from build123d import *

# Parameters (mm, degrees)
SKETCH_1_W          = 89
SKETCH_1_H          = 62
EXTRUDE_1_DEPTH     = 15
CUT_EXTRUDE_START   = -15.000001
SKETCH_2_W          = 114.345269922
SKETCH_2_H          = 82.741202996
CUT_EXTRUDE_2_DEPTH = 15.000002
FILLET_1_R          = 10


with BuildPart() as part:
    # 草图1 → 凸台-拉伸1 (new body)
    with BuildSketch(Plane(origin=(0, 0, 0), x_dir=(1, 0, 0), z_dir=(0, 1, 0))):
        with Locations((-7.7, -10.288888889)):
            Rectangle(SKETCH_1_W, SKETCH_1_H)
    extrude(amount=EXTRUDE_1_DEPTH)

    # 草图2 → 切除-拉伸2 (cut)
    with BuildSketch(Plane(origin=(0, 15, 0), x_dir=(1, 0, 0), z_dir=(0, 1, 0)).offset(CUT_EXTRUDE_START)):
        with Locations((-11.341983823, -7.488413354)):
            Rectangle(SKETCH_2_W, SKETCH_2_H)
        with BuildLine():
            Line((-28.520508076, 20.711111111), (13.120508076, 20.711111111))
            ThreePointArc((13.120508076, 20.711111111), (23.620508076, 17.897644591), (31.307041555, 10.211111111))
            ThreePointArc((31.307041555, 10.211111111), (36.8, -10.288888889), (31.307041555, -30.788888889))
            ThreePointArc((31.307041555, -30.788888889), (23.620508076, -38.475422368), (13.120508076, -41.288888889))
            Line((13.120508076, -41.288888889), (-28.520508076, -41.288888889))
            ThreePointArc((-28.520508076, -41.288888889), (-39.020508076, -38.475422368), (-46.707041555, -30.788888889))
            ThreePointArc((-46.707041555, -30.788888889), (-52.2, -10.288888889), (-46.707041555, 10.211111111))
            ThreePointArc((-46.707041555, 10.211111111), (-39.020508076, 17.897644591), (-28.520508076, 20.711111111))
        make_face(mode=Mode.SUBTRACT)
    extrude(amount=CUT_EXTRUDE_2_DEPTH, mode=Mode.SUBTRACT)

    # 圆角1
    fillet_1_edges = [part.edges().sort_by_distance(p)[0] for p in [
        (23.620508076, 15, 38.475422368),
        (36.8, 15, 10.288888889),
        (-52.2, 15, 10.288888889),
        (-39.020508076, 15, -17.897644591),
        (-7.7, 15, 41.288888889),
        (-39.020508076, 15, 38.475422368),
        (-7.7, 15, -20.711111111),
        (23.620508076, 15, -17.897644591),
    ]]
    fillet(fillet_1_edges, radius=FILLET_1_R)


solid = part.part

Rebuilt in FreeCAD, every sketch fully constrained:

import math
import FreeCAD as App
import Part
import Sketcher
from FreeCAD import Vector


def edges_at(feature, points):
    """Names of the edges that pass closest to the given points."""
    edges = feature.Shape.Edges
    near = lambda p: min(range(len(edges)), key=lambda i: edges[i].distToShape(Part.Vertex(*p))[0])
    return sorted({f"Edge{near(p) + 1}" for p in points})


def add_polygon(sketch, points):
    """Adds a closed chain of lines whose ends are joined by coincident constraints."""
    first, n = sketch.GeometryCount, len(points)
    for a, b in zip(points, points[1:] + points[:1]):
        sketch.addGeometry(Part.LineSegment(App.Vector(*a, 0), App.Vector(*b, 0)), False)
    for i in range(n):
        sketch.addConstraint(Sketcher.Constraint("Coincident", first + i, 2, first + (i + 1) % n, 1))

doc = App.newDocument("Part")
body = doc.addObject("PartDesign::Body", "Body")

# Sketch on XZ plane
sketch1 = body.newObject("Sketcher::SketchObject", "Sketch")
sketch1.AttachmentSupport = (doc.getObject("XZ_Plane"), [""])
sketch1.MapMode = "FlatFace"
add_polygon(sketch1, [(-52, -21), (-52, 41), (37, 41), (37, -21)])  # lines 0-3
sketch1.addConstraint([
    Sketcher.Constraint("Vertical", 0),
    Sketcher.Constraint("Horizontal", 1),
    Sketcher.Constraint("Vertical", 2),
    Sketcher.Constraint("Horizontal", 3),
    Sketcher.Constraint("DistanceX", 1, 1, 1, 2, 89.0),
    Sketcher.Constraint("DistanceY", 0, 1, 0, 2, 62.0),
    Sketcher.Constraint("DistanceX", 0, 2, -1, 1, 52.2),
    Sketcher.Constraint("DistanceY", -1, 1, 0, 2, 41.288889),
])
pad1 = body.newObject("PartDesign::Pad", "Pad")
pad1.Profile = sketch1
pad1.Length = 15
pad1.Reversed = True

# Sketch on XZ plane
sketch2 = body.newObject("Sketcher::SketchObject", "Sketch001")
sketch2.AttachmentSupport = (doc.getObject("XZ_Plane"), [""])
sketch2.MapMode = "FlatFace"
sketch2.AttachmentOffset = App.Placement(Vector(0, 0, 0.000001), App.Rotation())
add_polygon(sketch2, [(-69, -34), (-69, 49), (46, 49), (46, -34)])  # lines 0-3
sketch2.addGeometry(Part.ArcOfCircle(Part.Circle(Vector(-29, 0, 0), Vector(0, 0, 1), 21), math.radians(-150), math.radians(-90)), False)  # 4
sketch2.addGeometry(Part.LineSegment(Vector(-29, -21, 0), Vector(13, -21, 0)), False)  # 5
sketch2.addGeometry(Part.ArcOfCircle(Part.Circle(Vector(13, 0, 0), Vector(0, 0, 1), 21), math.radians(-90), math.radians(-30)), False)  # 6
sketch2.addGeometry(Part.ArcOfCircle(Part.Circle(Vector(-4, 10, 0), Vector(0, 0, 1), 41), math.radians(-30), math.radians(30)), False)  # 7
sketch2.addGeometry(Part.ArcOfCircle(Part.Circle(Vector(13, 20, 0), Vector(0, 0, 1), 21), math.radians(30), math.radians(90)), False)  # 8
sketch2.addGeometry(Part.LineSegment(Vector(13, 41, 0), Vector(-29, 41, 0)), False)  # 9
sketch2.addGeometry(Part.ArcOfCircle(Part.Circle(Vector(-29, 20, 0), Vector(0, 0, 1), 21), math.radians(90), math.radians(150)), False)  # 10
sketch2.addGeometry(Part.ArcOfCircle(Part.Circle(Vector(-11, 10, 0), Vector(0, 0, 1), 41), math.radians(150), math.radians(210)), False)  # 11
sketch2.addConstraint([
    Sketcher.Constraint("Tangent", 4, 2, 5, 1),
    Sketcher.Constraint("Tangent", 5, 2, 6, 1),
    Sketcher.Constraint("Tangent", 6, 2, 7, 1),
    Sketcher.Constraint("Tangent", 7, 2, 8, 1),
    Sketcher.Constraint("Tangent", 8, 2, 9, 1),
    Sketcher.Constraint("Tangent", 9, 2, 10, 1),
    Sketcher.Constraint("Tangent", 10, 2, 11, 1),
    Sketcher.Constraint("Tangent", 11, 2, 4, 1),
    Sketcher.Constraint("Vertical", 0),
    Sketcher.Constraint("Horizontal", 1),
    Sketcher.Constraint("Vertical", 2),
    Sketcher.Constraint("Horizontal", 3),
    Sketcher.Constraint("Horizontal", 5),
    Sketcher.Constraint("Horizontal", 9),
    Sketcher.Constraint("Equal", 4, 6),
    Sketcher.Constraint("Equal", 6, 8),
    Sketcher.Constraint("Equal", 8, 10),
    Sketcher.Constraint("Equal", 7, 11),
    Sketcher.Constraint("Horizontal", 7, 3, 11, 3),
    Sketcher.Constraint("Vertical", 6, 3, 8, 3),
    Sketcher.Constraint("Radius", 4, 21.0),
    Sketcher.Constraint("Radius", 7, 41.0),
    Sketcher.Constraint("DistanceY", 6, 3, 7, 3, 10.0),
    Sketcher.Constraint("DistanceX", 11, 3, 7, 3, 7.0),
    Sketcher.Constraint("DistanceX", 7, 3, -1, 1, 4.2),
    Sketcher.Constraint("DistanceX", 1, 1, 1, 2, 114.34527),
    Sketcher.Constraint("DistanceY", 0, 1, 0, 2, 82.741203),
    Sketcher.Constraint("DistanceY", -1, 1, 4, 3, 0.288889),
    Sketcher.Constraint("DistanceX", 0, 2, -1, 1, 68.514619),
    Sketcher.Constraint("DistanceY", 2, 2, -1, 1, 33.882188),
])
pocket1 = body.newObject("PartDesign::Pocket", "Pocket")
pocket1.Profile = sketch2
pocket1.Length = 15.000002
doc.recompute()

fillet = body.newObject("PartDesign::Fillet", "Fillet")
fillet.Base = (pocket1, edges_at(pocket1, [
    (23.621, 15, 38.475),
    (36.8, 15, 10.289),
    (-52.2, 15, 10.289),
    (-39.021, 15, -17.898),
    (-7.7, 15, 41.289),
    (-39.021, 15, 38.475),
    (-7.7, 15, -20.711),
    (23.621, 15, -17.898),
]))
fillet.Radius = 10

doc.recompute()
